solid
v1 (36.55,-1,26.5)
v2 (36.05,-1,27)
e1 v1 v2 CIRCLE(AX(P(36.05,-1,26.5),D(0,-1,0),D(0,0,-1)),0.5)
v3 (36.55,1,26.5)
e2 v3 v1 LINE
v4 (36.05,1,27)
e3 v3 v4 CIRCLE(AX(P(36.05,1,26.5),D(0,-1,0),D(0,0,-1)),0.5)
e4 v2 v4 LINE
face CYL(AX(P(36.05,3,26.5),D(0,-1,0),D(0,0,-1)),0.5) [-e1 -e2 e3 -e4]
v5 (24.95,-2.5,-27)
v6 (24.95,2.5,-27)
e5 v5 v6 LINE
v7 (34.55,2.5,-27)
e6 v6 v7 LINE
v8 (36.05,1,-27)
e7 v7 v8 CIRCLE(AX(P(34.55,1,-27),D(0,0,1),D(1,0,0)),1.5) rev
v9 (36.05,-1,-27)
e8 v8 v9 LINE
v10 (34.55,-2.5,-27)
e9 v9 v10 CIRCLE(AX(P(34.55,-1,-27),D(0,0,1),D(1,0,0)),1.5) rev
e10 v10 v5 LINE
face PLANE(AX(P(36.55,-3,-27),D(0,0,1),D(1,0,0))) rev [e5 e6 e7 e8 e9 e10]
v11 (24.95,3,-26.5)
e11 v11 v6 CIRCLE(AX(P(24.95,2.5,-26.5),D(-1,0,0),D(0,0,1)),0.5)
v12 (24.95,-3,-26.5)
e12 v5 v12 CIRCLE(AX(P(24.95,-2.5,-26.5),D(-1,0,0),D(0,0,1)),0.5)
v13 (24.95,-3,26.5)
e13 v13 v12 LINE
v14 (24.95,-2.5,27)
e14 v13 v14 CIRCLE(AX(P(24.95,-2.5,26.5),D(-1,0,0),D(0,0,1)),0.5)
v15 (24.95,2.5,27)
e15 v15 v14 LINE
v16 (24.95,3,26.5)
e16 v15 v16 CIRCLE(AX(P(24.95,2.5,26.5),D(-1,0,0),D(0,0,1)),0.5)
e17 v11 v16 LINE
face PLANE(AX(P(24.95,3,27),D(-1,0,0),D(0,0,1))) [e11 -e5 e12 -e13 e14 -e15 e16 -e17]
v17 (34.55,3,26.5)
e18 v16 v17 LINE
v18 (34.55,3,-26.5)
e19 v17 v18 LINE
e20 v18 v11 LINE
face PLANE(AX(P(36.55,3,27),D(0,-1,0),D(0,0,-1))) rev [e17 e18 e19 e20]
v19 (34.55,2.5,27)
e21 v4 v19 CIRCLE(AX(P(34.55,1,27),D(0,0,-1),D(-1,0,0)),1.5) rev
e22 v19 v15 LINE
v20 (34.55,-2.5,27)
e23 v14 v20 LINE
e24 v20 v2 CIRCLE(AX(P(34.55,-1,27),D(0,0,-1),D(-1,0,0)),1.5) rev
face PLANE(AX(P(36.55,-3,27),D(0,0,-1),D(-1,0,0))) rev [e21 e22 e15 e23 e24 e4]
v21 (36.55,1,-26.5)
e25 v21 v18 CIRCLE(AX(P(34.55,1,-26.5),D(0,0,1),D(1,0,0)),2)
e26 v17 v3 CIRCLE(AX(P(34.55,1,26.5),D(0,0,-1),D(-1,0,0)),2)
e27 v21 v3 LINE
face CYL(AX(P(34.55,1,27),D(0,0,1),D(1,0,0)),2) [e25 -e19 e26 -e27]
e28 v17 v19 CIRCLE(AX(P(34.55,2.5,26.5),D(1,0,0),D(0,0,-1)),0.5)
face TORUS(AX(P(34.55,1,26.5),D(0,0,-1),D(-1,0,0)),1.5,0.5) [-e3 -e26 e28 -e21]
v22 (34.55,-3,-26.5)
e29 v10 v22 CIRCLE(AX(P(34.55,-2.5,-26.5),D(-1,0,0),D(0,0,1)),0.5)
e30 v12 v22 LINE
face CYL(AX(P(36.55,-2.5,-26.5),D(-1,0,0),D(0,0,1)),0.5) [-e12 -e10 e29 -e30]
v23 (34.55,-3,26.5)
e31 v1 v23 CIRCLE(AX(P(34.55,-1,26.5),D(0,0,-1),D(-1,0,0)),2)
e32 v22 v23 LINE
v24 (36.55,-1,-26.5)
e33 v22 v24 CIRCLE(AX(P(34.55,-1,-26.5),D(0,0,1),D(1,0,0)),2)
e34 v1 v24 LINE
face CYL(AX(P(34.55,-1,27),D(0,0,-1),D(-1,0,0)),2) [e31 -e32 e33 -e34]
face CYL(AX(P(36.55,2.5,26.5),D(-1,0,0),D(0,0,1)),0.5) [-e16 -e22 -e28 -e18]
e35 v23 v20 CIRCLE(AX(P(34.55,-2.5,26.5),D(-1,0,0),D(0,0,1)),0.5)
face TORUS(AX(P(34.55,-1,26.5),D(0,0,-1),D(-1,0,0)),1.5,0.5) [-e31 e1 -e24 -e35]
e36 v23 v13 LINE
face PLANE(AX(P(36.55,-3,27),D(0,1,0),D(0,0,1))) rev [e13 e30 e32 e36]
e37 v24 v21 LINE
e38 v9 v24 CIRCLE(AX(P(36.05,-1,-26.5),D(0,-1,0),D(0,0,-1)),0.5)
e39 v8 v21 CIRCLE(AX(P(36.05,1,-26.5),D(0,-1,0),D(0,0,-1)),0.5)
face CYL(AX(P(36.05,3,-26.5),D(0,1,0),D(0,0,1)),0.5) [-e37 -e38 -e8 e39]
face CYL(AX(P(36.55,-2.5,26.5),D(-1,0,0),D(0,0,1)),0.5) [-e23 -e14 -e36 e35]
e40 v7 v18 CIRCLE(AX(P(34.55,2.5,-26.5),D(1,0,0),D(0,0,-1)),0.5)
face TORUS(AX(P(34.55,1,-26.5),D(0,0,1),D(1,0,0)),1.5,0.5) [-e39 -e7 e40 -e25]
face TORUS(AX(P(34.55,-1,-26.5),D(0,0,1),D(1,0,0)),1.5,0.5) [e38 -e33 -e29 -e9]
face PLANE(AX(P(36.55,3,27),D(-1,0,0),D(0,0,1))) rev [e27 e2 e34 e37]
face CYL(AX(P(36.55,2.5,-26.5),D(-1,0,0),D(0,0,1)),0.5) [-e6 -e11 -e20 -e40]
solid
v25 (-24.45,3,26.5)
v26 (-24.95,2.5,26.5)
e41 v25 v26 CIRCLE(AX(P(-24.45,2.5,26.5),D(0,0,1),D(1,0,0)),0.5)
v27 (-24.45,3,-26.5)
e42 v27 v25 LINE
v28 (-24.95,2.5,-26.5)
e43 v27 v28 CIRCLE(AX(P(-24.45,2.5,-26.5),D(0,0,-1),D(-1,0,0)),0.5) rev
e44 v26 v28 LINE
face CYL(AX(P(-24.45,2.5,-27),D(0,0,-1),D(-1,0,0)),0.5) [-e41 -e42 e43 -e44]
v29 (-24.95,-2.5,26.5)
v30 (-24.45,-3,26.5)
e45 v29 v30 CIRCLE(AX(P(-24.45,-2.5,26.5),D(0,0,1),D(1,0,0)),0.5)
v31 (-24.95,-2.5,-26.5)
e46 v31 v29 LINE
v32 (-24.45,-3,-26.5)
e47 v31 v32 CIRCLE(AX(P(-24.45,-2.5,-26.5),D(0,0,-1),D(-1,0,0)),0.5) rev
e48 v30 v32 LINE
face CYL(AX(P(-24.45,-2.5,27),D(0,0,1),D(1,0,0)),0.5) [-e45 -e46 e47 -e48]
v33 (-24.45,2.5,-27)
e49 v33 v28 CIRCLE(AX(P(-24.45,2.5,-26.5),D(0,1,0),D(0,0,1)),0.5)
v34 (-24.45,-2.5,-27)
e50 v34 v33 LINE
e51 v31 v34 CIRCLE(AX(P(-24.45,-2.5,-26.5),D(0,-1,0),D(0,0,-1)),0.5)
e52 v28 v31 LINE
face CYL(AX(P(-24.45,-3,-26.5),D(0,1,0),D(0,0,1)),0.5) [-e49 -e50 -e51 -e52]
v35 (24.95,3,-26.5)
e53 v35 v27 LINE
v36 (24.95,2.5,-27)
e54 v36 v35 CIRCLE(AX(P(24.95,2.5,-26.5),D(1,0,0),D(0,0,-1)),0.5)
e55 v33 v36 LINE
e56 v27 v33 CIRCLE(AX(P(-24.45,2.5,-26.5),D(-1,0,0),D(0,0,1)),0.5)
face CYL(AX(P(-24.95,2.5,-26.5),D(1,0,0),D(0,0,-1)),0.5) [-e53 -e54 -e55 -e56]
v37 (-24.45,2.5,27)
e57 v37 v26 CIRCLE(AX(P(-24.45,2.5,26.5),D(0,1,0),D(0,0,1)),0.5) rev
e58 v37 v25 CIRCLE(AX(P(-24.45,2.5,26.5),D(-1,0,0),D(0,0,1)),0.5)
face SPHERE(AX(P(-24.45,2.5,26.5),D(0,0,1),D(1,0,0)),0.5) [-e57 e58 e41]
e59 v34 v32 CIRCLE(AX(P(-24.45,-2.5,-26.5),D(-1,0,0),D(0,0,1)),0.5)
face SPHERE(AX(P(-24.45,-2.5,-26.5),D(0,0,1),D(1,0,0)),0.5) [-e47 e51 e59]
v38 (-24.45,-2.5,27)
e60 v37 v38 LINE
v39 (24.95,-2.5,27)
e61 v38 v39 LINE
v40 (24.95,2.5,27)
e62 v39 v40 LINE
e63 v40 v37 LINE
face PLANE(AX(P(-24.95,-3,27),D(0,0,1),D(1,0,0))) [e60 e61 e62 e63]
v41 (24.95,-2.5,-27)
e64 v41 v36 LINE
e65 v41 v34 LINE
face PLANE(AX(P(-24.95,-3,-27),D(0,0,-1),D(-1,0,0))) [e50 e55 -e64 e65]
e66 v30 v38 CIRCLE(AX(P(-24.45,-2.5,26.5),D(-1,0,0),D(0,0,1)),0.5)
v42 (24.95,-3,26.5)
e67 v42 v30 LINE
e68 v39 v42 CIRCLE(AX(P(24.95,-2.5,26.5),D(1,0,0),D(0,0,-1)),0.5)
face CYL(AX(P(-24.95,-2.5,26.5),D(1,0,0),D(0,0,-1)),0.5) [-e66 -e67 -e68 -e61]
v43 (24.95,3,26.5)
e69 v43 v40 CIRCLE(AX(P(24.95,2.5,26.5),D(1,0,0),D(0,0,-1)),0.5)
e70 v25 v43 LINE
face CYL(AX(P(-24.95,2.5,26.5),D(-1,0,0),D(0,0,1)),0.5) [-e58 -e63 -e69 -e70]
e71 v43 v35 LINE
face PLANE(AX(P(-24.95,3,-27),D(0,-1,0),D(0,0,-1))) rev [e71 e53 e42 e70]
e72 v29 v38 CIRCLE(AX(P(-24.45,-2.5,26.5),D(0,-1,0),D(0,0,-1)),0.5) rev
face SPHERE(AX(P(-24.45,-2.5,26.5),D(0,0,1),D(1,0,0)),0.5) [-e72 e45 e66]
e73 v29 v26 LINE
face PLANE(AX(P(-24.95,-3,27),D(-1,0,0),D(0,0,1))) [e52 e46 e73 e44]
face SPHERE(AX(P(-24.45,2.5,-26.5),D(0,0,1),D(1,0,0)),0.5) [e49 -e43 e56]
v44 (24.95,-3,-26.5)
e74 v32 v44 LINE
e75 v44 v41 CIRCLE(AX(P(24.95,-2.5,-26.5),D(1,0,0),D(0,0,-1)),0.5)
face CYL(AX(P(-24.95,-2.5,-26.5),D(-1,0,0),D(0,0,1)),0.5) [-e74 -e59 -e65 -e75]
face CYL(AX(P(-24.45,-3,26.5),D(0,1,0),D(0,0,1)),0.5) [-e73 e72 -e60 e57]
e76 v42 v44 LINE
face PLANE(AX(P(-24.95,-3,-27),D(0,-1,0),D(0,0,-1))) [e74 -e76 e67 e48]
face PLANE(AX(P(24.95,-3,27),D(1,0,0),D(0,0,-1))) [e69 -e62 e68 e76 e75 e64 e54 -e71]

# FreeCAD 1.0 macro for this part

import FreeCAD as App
import Part
import Sketcher
from FreeCAD import Vector


def edges_at(feature, points):
    """Names of the edges that pass closest to the given points."""
    edges = feature.Shape.Edges
    near = lambda p: min(range(len(edges)), key=lambda i: edges[i].distToShape(Part.Vertex(*p))[0])
    return sorted({f"Edge{near(p) + 1}" for p in points})


def add_polygon(sketch, points):
    """Adds a closed chain of lines whose ends are joined by coincident constraints."""
    first, n = sketch.GeometryCount, len(points)
    for a, b in zip(points, points[1:] + points[:1]):
        sketch.addGeometry(Part.LineSegment(App.Vector(*a, 0), App.Vector(*b, 0)), False)
    for i in range(n):
        sketch.addConstraint(Sketcher.Constraint("Coincident", first + i, 2, first + (i + 1) % n, 1))

doc = App.newDocument("Part")
params = doc.addObject("Spreadsheet::Sheet", "Params")
for row, (alias, value) in enumerate([
    ("sketch1_height", "54 mm"),
    ("sketch1_width", "49.9 mm"),
    ("pad1_length", "3 mm"),
    ("pad1_length2", "3 mm"),
    ("fillet_radius", "0.5 mm"),
    ("sketch2_width", "6 mm"),
    ("sketch2_height", "54 mm"),
    ("pad2_length", "11.6 mm"),
    ("fillet2_radius", "2 mm"),
    ("fillet3_radius", "0.5 mm"),
], start=1):
    params.set(f"A{row}", alias)
    params.set(f"B{row}", "=" + value)
    params.setAlias(f"B{row}", alias)

body = doc.addObject("PartDesign::Body", "Body")

sketch1 = body.newObject("Sketcher::SketchObject", "Sketch")
sketch1.AttachmentSupport = (doc.getObject("XZ_Plane"), [""])
sketch1.MapMode = "FlatFace"
add_polygon(sketch1, [(-25, -27), (-25, 27), (25, 27), (25, -27)])
sketch1.addConstraint([
    Sketcher.Constraint("Vertical", 0),
    Sketcher.Constraint("Horizontal", 1),
    Sketcher.Constraint("Vertical", 2),
    Sketcher.Constraint("Horizontal", 3),
    Sketcher.Constraint("Symmetric", 0, 2, 2, 2, -1, 1),
    Sketcher.Constraint("DistanceY", 0, 1, 0, 2, 54.0),
    Sketcher.Constraint("DistanceX", 1, 1, 1, 2, 49.9),
])
sketch1.setExpression("Constraints[9]", "Params.sketch1_height")
sketch1.setExpression("Constraints[10]", "Params.sketch1_width")
pad1 = body.newObject("PartDesign::Pad", "Pad")
pad1.Profile = sketch1
pad1.Type = "TwoLengths"
pad1.setExpression("Length", "Params.pad1_length")
pad1.setExpression("Length2", "Params.pad1_length2")
pad1.Reversed = True
doc.recompute()

fillet = body.newObject("PartDesign::Fillet", "Fillet")
fillet.Base = (pad1, edges_at(pad1, [
    (-24.95, 3, 0),
    (0, 3, 27),
    (0, -3, -27),
    (0, 3, -27),
    (-24.95, -3, 0),
    (0, -3, 27),
    (-24.95, 0, -27),
    (-24.95, 0, 27),
]))
fillet.setExpression("Radius", "Params.fillet_radius")
body2 = doc.addObject("PartDesign::Body", "Body001")

sketch2 = body2.newObject("Sketcher::SketchObject", "Sketch001")
sketch2.AttachmentSupport = (doc.getObject("YZ_Plane001"), [""])
sketch2.MapMode = "FlatFace"
sketch2.AttachmentOffset = App.Placement(Vector(0, 0, 24.95), App.Rotation())
add_polygon(sketch2, [(3, 27), (-3, 27), (-3, -27), (3, -27)])
sketch2.addConstraint([
    Sketcher.Constraint("Horizontal", 0),
    Sketcher.Constraint("Vertical", 1),
    Sketcher.Constraint("Horizontal", 2),
    Sketcher.Constraint("Vertical", 3),
    Sketcher.Constraint("Symmetric", 0, 2, 2, 2, -1, 1),
    Sketcher.Constraint("DistanceX", 0, 2, 0, 1, 6.0),
    Sketcher.Constraint("DistanceY", 1, 2, 1, 1, 54.0),
])
sketch2.setExpression("Constraints[9]", "Params.sketch2_width")
sketch2.setExpression("Constraints[10]", "Params.sketch2_height")
pad2 = body2.newObject("PartDesign::Pad", "Pad001")
pad2.Profile = sketch2
pad2.setExpression("Length", "Params.pad2_length")
doc.recompute()

fillet2 = body2.newObject("PartDesign::Fillet", "Fillet001")
fillet2.Base = (pad2, edges_at(pad2, [(36.55, 3, 0), (36.55, -3, 0)]))
fillet2.setExpression("Radius", "Params.fillet2_radius")
doc.recompute()

fillet3 = body2.newObject("PartDesign::Fillet", "Fillet002")
fillet3.Base = (fillet2, edges_at(fillet2, [
    (36.55, 0, 27),
    (36.55, 0, -27),
    (29.75, 3, -27),
    (29.75, -3, -27),
    (35.964, 2.414, -27),
    (35.964, -2.414, -27),
    (29.75, -3, 27),
    (29.75, 3, 27),
    (35.964, 2.414, 27),
    (35.964, -2.414, 27),
]))
fillet3.setExpression("Radius", "Params.fillet3_radius")

doc.recompute()
